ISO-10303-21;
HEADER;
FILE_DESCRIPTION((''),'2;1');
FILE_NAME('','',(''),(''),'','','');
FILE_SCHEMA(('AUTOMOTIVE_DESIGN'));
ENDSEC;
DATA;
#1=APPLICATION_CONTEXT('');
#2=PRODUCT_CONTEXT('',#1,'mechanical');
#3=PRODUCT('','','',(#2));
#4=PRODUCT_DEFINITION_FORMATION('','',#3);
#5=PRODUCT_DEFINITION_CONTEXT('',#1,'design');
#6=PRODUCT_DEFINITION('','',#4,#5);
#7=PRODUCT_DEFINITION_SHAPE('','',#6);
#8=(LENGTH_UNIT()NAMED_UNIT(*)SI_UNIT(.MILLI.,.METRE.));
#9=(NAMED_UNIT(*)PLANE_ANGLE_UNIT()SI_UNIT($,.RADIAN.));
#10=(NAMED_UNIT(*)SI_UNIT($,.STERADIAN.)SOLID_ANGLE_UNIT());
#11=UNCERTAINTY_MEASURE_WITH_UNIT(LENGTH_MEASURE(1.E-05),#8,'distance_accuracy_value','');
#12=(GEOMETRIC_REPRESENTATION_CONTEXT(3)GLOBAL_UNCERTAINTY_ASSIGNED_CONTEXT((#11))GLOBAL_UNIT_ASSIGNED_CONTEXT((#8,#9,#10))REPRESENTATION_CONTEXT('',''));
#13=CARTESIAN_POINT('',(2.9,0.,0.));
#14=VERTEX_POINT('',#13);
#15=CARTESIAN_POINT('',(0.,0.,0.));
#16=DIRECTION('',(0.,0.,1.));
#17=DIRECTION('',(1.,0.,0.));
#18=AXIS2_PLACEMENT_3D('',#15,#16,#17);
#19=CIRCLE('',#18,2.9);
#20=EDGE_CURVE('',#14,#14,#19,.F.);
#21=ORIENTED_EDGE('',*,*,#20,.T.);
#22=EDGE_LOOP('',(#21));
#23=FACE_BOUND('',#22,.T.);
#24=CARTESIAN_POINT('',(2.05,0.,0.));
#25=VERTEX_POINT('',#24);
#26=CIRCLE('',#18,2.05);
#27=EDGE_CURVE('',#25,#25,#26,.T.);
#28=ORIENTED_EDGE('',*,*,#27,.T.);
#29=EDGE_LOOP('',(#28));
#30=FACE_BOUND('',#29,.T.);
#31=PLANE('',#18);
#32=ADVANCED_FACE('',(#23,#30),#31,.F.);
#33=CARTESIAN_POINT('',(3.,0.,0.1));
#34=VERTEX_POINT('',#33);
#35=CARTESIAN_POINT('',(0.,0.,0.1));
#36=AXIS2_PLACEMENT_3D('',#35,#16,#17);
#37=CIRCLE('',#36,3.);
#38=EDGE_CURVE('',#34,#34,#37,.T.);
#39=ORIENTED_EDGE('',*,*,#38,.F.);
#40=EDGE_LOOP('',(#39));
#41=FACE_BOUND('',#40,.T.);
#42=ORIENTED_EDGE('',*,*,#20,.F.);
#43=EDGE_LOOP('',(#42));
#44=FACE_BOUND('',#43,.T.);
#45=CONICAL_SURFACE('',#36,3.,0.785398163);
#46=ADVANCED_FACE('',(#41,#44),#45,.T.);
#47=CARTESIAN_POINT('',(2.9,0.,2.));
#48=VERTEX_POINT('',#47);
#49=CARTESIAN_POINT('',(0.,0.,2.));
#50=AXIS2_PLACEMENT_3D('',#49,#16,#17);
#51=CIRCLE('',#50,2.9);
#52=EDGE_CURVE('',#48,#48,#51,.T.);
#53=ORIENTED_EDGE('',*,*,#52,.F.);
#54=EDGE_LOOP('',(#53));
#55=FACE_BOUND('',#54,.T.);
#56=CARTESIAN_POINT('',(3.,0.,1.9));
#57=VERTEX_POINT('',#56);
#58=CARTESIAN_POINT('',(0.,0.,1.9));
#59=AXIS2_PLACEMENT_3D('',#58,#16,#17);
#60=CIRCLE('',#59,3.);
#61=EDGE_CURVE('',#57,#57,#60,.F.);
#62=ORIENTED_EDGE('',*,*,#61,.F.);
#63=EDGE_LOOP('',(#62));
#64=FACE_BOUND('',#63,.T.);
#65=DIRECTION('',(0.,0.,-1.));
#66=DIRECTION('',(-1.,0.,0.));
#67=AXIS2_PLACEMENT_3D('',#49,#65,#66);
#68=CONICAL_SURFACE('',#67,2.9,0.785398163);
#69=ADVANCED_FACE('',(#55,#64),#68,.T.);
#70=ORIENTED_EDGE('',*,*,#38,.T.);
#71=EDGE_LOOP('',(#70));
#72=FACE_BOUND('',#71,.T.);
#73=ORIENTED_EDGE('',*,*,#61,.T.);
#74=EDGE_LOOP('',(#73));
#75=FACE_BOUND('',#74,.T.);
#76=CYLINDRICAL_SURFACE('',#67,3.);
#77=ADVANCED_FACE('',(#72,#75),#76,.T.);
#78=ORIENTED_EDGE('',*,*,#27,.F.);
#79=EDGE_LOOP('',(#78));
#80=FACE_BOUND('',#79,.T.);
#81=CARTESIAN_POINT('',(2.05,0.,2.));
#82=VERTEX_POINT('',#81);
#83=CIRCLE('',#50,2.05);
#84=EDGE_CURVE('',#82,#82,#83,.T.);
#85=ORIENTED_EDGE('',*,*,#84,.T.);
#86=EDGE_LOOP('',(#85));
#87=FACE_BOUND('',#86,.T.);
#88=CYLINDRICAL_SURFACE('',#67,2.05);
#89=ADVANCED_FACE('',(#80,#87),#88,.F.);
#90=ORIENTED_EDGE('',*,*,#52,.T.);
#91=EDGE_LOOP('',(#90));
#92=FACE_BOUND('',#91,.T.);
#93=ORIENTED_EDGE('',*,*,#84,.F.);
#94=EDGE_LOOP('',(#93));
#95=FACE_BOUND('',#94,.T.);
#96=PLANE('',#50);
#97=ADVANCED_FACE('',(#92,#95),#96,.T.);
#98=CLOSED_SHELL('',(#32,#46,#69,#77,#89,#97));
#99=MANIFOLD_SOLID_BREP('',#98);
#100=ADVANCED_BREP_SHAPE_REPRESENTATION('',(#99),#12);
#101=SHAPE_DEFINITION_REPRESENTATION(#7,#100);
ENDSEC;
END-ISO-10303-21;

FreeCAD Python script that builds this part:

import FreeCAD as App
import Part
import Sketcher

V = App.Vector
Q = App.Units.Quantity


def edges_at(feature, points):
    """Names of the edges that pass closest to the given points."""
    edges = feature.Shape.Edges
    near = lambda p: min(range(len(edges)), key=lambda i: edges[i].distToShape(Part.Vertex(*p))[0])
    return sorted({f"Edge{near(p) + 1}" for p in points})

doc = App.newDocument("Part")
body = doc.addObject("PartDesign::Body", "Body")

sketch1 = body.newObject("Sketcher::SketchObject", "Sketch")
sketch1.AttachmentSupport = (doc.getObject("XY_Plane"), [""])
sketch1.MapMode = "FlatFace"
sketch1.addGeometry([
    Part.Circle(V(0, 0, 0), V(0, 0, 1), 3),
    Part.Circle(V(0, 0, 0), V(0, 0, 1), 2),
], False)
sketch1.addConstraint([
    Sketcher.Constraint("Coincident", 0, 3, -1, 1),
    Sketcher.Constraint("Coincident", 1, 3, -1, 1),
    Sketcher.Constraint("Diameter", 0, Q("6 mm")),
    Sketcher.Constraint("Diameter", 1, Q("4.1 mm")),
])
pad1 = body.newObject("PartDesign::Pad", "Pad")
pad1.Profile = sketch1
pad1.Length = 2
doc.recompute()

chamfer = body.newObject("PartDesign::Chamfer", "Chamfer")
chamfer.Base = (pad1, edges_at(pad1, [(-3, 0, 0), (-3, 0, 2)]))
chamfer.Size = 0.1

doc.recompute()
